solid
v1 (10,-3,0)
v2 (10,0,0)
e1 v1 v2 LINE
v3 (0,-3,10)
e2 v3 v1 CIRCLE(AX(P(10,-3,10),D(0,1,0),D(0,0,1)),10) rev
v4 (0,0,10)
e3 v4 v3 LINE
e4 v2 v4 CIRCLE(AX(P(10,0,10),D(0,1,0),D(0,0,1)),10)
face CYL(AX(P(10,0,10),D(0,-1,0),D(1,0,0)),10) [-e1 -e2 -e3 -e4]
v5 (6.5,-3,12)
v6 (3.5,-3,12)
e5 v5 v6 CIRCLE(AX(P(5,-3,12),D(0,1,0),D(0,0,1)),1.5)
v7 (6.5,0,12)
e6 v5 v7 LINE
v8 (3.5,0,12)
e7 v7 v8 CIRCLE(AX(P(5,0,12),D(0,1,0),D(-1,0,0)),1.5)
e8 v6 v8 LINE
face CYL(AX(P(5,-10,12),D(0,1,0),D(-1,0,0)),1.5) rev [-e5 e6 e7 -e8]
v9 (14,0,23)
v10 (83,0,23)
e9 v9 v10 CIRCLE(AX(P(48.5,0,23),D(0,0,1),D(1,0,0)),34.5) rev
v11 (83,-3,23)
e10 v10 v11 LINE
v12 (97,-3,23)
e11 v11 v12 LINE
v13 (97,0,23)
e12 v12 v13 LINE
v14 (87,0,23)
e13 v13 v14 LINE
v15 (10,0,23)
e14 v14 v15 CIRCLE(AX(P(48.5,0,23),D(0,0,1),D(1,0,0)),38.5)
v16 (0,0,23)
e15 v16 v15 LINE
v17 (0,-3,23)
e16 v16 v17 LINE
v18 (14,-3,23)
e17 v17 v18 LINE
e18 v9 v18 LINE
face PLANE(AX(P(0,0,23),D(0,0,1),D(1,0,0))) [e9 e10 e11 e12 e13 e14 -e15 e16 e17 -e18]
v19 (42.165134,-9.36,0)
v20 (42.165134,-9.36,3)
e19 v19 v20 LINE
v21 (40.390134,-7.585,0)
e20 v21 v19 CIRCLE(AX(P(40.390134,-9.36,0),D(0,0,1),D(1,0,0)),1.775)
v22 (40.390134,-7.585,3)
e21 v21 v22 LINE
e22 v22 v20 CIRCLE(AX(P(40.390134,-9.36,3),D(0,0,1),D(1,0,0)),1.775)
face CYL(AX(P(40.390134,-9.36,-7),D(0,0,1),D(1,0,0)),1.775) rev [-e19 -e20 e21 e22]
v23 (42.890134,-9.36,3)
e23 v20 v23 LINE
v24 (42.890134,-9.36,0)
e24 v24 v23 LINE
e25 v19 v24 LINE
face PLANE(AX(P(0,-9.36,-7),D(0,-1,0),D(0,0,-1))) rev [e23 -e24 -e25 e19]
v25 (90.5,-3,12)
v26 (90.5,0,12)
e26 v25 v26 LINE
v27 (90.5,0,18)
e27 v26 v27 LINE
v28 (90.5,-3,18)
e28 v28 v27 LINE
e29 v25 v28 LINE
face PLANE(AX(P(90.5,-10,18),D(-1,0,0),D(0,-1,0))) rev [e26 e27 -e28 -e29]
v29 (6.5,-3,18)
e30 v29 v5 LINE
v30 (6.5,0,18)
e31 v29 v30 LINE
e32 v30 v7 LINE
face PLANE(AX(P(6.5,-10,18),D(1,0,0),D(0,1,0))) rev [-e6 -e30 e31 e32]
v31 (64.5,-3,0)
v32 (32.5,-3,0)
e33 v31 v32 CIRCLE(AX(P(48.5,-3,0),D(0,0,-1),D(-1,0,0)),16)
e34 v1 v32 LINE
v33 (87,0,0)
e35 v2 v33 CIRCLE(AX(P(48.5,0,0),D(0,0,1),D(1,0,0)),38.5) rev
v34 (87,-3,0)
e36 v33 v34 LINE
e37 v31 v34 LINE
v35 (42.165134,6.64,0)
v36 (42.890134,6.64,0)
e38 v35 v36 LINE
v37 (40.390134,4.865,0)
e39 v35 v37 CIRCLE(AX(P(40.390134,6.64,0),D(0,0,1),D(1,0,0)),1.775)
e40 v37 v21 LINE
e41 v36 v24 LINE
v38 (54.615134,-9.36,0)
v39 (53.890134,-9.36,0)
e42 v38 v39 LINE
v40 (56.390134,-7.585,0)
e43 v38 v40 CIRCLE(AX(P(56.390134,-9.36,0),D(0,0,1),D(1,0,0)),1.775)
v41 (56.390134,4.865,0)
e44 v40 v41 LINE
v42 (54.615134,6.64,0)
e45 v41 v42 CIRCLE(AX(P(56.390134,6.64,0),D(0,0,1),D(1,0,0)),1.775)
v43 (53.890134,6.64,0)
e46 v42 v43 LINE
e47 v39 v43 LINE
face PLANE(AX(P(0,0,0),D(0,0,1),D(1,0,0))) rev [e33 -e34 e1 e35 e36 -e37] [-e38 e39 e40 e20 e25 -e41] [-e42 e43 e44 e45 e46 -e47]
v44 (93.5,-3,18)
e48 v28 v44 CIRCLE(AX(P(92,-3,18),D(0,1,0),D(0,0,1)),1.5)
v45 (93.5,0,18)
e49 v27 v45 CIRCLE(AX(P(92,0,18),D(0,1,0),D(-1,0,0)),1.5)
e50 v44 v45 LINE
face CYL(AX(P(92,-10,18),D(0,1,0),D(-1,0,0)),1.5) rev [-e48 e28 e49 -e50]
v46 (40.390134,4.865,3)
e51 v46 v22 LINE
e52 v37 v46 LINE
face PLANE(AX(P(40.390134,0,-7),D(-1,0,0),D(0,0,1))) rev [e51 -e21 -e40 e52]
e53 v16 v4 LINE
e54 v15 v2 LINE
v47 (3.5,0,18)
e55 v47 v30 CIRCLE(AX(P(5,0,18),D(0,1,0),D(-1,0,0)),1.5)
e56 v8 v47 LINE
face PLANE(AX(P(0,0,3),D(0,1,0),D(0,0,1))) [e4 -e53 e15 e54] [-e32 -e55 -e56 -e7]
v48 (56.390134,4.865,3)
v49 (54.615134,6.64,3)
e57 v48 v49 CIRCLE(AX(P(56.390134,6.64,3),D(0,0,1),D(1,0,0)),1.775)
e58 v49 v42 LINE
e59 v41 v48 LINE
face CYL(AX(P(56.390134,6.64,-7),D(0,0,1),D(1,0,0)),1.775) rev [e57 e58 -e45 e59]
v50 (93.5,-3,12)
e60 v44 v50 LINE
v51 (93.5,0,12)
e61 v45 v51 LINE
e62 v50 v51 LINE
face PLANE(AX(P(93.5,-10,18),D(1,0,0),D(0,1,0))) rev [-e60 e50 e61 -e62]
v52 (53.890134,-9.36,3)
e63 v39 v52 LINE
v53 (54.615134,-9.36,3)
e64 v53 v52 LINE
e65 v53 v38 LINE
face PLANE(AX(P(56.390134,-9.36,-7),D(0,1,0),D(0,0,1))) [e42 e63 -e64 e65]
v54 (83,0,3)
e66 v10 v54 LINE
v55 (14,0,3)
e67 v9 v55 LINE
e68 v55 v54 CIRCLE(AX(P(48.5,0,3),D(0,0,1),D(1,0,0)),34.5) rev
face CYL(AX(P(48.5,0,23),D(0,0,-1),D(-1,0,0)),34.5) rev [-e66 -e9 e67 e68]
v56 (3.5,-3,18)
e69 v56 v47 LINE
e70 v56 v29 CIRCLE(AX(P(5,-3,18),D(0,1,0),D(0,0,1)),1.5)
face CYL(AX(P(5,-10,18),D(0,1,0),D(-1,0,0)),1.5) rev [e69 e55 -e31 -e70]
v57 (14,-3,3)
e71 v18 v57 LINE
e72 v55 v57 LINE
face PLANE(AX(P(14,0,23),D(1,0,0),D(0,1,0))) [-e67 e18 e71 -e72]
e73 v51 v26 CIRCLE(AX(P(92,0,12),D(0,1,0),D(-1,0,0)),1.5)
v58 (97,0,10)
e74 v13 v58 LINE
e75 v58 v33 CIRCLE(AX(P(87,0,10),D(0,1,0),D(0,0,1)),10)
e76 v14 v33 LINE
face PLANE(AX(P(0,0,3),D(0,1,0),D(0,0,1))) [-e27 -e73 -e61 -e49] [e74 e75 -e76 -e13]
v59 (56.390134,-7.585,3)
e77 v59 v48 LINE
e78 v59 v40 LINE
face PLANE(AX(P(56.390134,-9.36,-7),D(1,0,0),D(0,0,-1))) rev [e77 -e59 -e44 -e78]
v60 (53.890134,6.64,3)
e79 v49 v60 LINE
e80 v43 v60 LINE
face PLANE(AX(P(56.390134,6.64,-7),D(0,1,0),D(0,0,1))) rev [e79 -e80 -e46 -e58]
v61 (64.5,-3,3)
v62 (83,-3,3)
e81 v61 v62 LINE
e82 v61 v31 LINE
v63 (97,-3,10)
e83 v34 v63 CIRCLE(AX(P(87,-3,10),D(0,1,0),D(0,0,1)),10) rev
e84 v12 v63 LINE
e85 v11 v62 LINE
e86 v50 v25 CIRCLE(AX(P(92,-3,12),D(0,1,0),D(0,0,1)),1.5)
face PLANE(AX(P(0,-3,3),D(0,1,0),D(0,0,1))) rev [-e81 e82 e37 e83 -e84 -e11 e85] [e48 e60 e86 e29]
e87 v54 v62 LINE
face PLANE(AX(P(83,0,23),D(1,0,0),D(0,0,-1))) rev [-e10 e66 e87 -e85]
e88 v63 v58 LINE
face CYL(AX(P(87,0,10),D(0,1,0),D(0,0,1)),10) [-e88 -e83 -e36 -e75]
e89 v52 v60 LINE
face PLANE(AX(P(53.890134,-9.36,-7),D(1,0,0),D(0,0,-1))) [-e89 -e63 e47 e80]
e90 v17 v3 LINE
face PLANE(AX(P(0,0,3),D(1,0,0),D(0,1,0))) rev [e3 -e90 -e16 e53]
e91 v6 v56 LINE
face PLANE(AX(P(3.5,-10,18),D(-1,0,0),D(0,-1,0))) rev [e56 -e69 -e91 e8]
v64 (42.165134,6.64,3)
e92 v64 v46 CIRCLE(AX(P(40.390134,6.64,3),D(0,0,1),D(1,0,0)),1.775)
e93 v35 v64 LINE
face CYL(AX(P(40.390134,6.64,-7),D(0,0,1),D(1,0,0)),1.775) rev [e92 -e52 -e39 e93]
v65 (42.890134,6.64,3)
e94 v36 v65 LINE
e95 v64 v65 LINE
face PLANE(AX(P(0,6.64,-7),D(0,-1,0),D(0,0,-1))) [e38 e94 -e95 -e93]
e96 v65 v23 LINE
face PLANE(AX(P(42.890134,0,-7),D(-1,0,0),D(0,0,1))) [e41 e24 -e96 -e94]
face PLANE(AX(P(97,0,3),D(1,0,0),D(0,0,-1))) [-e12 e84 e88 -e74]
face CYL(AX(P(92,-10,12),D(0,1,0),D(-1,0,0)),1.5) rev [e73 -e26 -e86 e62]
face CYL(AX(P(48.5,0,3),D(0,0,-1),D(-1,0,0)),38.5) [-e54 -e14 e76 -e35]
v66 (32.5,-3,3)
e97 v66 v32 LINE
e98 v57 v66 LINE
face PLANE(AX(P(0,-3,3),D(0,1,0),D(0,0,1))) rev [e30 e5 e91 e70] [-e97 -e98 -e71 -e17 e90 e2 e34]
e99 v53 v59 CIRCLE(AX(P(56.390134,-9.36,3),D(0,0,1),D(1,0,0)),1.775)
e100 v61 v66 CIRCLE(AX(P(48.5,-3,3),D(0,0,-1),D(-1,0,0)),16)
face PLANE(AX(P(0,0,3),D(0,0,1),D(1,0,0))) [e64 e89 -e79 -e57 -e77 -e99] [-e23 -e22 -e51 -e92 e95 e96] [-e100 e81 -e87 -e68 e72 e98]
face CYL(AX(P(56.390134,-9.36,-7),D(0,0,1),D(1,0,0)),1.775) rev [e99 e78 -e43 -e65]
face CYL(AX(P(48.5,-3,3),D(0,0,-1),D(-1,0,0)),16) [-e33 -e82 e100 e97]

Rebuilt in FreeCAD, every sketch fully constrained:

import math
import FreeCAD as App
import Part
import Sketcher


def edges_at(feature, points):
    """Names of the edges that pass closest to the given points."""
    edges = feature.Shape.Edges
    near = lambda p: min(range(len(edges)), key=lambda i: edges[i].distToShape(Part.Vertex(*p))[0])
    return sorted({f"Edge{near(p) + 1}" for p in points})

doc = App.newDocument("Part")
body = doc.addObject("PartDesign::Body", "Body")

# Sketch on XY plane
sketch1 = body.newObject("Sketcher::SketchObject", "Sketch")
sketch1.AttachmentSupport = (doc.getObject("XY_Plane"), [""])
sketch1.MapMode = "FlatFace"
sketch1.addGeometry(Part.LineSegment(App.Vector(10, 0, 0), App.Vector(0, 0, 0)), False)
sketch1.addGeometry(Part.LineSegment(App.Vector(0, 0, 0), App.Vector(0, -3, 0)), False)
sketch1.addGeometry(Part.LineSegment(App.Vector(0, -3, 0), App.Vector(97, -3, 0)), False)
sketch1.addGeometry(Part.LineSegment(App.Vector(97, -3, 0), App.Vector(97, 0, 0)), False)
sketch1.addGeometry(Part.LineSegment(App.Vector(97, 0, 0), App.Vector(87, 0, 0)), False)
sketch1.addGeometry(Part.ArcOfCircle(Part.Circle(App.Vector(48.5, 0, 0), App.Vector(0, 0, 1), 38.5), math.radians(0), math.radians(180)), False)
sketch1.addConstraint(Sketcher.Constraint("Coincident", 0, 2, 1, 1))
sketch1.addConstraint(Sketcher.Constraint("Coincident", 1, 2, 2, 1))
sketch1.addConstraint(Sketcher.Constraint("Coincident", 2, 2, 3, 1))
sketch1.addConstraint(Sketcher.Constraint("Coincident", 3, 2, 4, 1))
sketch1.addConstraint(Sketcher.Constraint("Coincident", 4, 2, 5, 1))
sketch1.addConstraint(Sketcher.Constraint("Coincident", 5, 2, 0, 1))
sketch1.addConstraint(Sketcher.Constraint("Horizontal", 0))
sketch1.addConstraint(Sketcher.Constraint("Vertical", 1))
sketch1.addConstraint(Sketcher.Constraint("Horizontal", 2))
sketch1.addConstraint(Sketcher.Constraint("Vertical", 3))
sketch1.addConstraint(Sketcher.Constraint("Horizontal", 4))
sketch1.addConstraint(Sketcher.Constraint("Coincident", 0, 2, -1, 1))
sketch1.addConstraint(Sketcher.Constraint("PointOnObject", 5, 3, -1))
sketch1.addConstraint(Sketcher.Constraint("PointOnObject", 3, 2, -1))
sketch1.addConstraint(Sketcher.Constraint("Equal", 0, 4))
sketch1.addConstraint(Sketcher.Constraint("Radius", 5, 38.5))
sketch1.addConstraint(Sketcher.Constraint("DistanceX", 0, 2, 0, 1, 10.0))
sketch1.addConstraint(Sketcher.Constraint("DistanceY", 1, 2, 1, 1, 3.0))
pad1 = body.newObject("PartDesign::Pad", "Pad")
pad1.Profile = sketch1
pad1.Length = 3

# Sketch on XY plane
sketch2 = body.newObject("Sketcher::SketchObject", "Sketch001")
sketch2.AttachmentSupport = (doc.getObject("XY_Plane"), [""])
sketch2.MapMode = "FlatFace"
sketch2.AttachmentOffset = App.Placement(App.Vector(0, 0, 3), App.Rotation())
sketch2.addGeometry(Part.LineSegment(App.Vector(0, 0, 0), App.Vector(0, -3, 0)), False)
sketch2.addGeometry(Part.LineSegment(App.Vector(0, -3, 0), App.Vector(14, -3, 0)), False)
sketch2.addGeometry(Part.LineSegment(App.Vector(14, -3, 0), App.Vector(14, 0, 0)), False)
sketch2.addGeometry(Part.ArcOfCircle(Part.Circle(App.Vector(48.5, 0, 0), App.Vector(0, 0, 1), 34.5), math.radians(0), math.radians(180)), False)
sketch2.addGeometry(Part.LineSegment(App.Vector(83, 0, 0), App.Vector(83, -3, 0)), False)
sketch2.addGeometry(Part.LineSegment(App.Vector(83, -3, 0), App.Vector(97, -3, 0)), False)
sketch2.addGeometry(Part.LineSegment(App.Vector(97, -3, 0), App.Vector(97, 0, 0)), False)
sketch2.addGeometry(Part.LineSegment(App.Vector(97, 0, 0), App.Vector(87, 0, 0)), False)
sketch2.addGeometry(Part.ArcOfCircle(Part.Circle(App.Vector(48.5, 0, 0), App.Vector(0, 0, 1), 38.5), math.radians(0), math.radians(180)), False)
sketch2.addGeometry(Part.LineSegment(App.Vector(10, 0, 0), App.Vector(0, 0, 0)), False)
sketch2.addConstraint(Sketcher.Constraint("Coincident", 0, 2, 1, 1))
sketch2.addConstraint(Sketcher.Constraint("Coincident", 1, 2, 2, 1))
sketch2.addConstraint(Sketcher.Constraint("Tangent", 2, 2, 3, 2))
sketch2.addConstraint(Sketcher.Constraint("Tangent", 3, 1, 4, 1))
sketch2.addConstraint(Sketcher.Constraint("Coincident", 4, 2, 5, 1))
sketch2.addConstraint(Sketcher.Constraint("Coincident", 5, 2, 6, 1))
sketch2.addConstraint(Sketcher.Constraint("Coincident", 6, 2, 7, 1))
sketch2.addConstraint(Sketcher.Constraint("Coincident", 7, 2, 8, 1))
sketch2.addConstraint(Sketcher.Constraint("Coincident", 8, 2, 9, 1))
sketch2.addConstraint(Sketcher.Constraint("Coincident", 9, 2, 0, 1))
sketch2.addConstraint(Sketcher.Constraint("Vertical", 0))
sketch2.addConstraint(Sketcher.Constraint("Horizontal", 1))
sketch2.addConstraint(Sketcher.Constraint("Vertical", 2))
sketch2.addConstraint(Sketcher.Constraint("Vertical", 4))
sketch2.addConstraint(Sketcher.Constraint("Horizontal", 5))
sketch2.addConstraint(Sketcher.Constraint("Vertical", 6))
sketch2.addConstraint(Sketcher.Constraint("Horizontal", 7))
sketch2.addConstraint(Sketcher.Constraint("Horizontal", 9))
sketch2.addConstraint(Sketcher.Constraint("Coincident", 9, 2, -1, 1))
sketch2.addConstraint(Sketcher.Constraint("Coincident", 8, 3, 3, 3))
sketch2.addConstraint(Sketcher.Constraint("PointOnObject", 3, 3, -1))
sketch2.addConstraint(Sketcher.Constraint("PointOnObject", 6, 2, -1))
sketch2.addConstraint(Sketcher.Constraint("Horizontal", 1, 2, 4, 2))
sketch2.addConstraint(Sketcher.Constraint("Equal", 1, 5))
sketch2.addConstraint(Sketcher.Constraint("Radius", 3, 34.5))
sketch2.addConstraint(Sketcher.Constraint("Radius", 8, 38.5))
sketch2.addConstraint(Sketcher.Constraint("DistanceX", 1, 1, 1, 2, 14.0))
sketch2.addConstraint(Sketcher.Constraint("DistanceY", 0, 2, 0, 1, 3.0))
pad2 = body.newObject("PartDesign::Pad", "Pad001")
pad2.Profile = sketch2
pad2.Length = 20

# Sketch on XY plane
sketch3 = body.newObject("Sketcher::SketchObject", "Sketch002")
sketch3.AttachmentSupport = (doc.getObject("XY_Plane"), [""])
sketch3.MapMode = "FlatFace"
sketch3.addGeometry(Part.LineSegment(App.Vector(32, -3, 0), App.Vector(64, -3, 0)), False)
sketch3.addGeometry(Part.ArcOfCircle(Part.Circle(App.Vector(48, -3, 0), App.Vector(0, 0, 1), 16), math.radians(180), math.radians(360)), False)
sketch3.addConstraint(Sketcher.Constraint("Coincident", 0, 1, 1, 1))
sketch3.addConstraint(Sketcher.Constraint("Coincident", 1, 2, 0, 2))
sketch3.addConstraint(Sketcher.Constraint("Horizontal", 0))
sketch3.addConstraint(Sketcher.Constraint("Horizontal", 1, 3, 0, 1))
sketch3.addConstraint(Sketcher.Constraint("Radius", 1, 16.0))
sketch3.addConstraint(Sketcher.Constraint("DistanceY", 1, 3, -1, 1, 3.0))
sketch3.addConstraint(Sketcher.Constraint("DistanceX", -1, 1, 1, 3, 48.5))
pad3 = body.newObject("PartDesign::Pad", "Pad002")
pad3.Profile = sketch3
pad3.Length = 3

# Sketch on XZ plane
sketch4 = body.newObject("Sketcher::SketchObject", "Sketch003")
sketch4.AttachmentSupport = (doc.getObject("XZ_Plane"), [""])
sketch4.MapMode = "FlatFace"
sketch4.addGeometry(Part.LineSegment(App.Vector(3.5, 12, 0), App.Vector(3.5, 18, 0)), False)
sketch4.addGeometry(Part.ArcOfCircle(Part.Circle(App.Vector(5, 18, 0), App.Vector(0, 0, 1), 1.5), math.radians(0), math.radians(180)), False)
sketch4.addGeometry(Part.LineSegment(App.Vector(6.5, 18, 0), App.Vector(6.5, 12, 0)), False)
sketch4.addGeometry(Part.ArcOfCircle(Part.Circle(App.Vector(5, 12, 0), App.Vector(0, 0, 1), 1.5), math.radians(180), math.radians(360)), False)
sketch4.addGeometry(Part.LineSegment(App.Vector(90.5, 12, 0), App.Vector(90.5, 18, 0)), False)
sketch4.addGeometry(Part.ArcOfCircle(Part.Circle(App.Vector(92, 18, 0), App.Vector(0, 0, 1), 1.5), math.radians(0), math.radians(180)), False)
sketch4.addGeometry(Part.LineSegment(App.Vector(93.5, 18, 0), App.Vector(93.5, 12, 0)), False)
sketch4.addGeometry(Part.ArcOfCircle(Part.Circle(App.Vector(92, 12, 0), App.Vector(0, 0, 1), 1.5), math.radians(180), math.radians(360)), False)
sketch4.addConstraint(Sketcher.Constraint("Tangent", 0, 2, 1, 2))
sketch4.addConstraint(Sketcher.Constraint("Tangent", 1, 1, 2, 1))
sketch4.addConstraint(Sketcher.Constraint("Tangent", 2, 2, 3, 2))
sketch4.addConstraint(Sketcher.Constraint("Tangent", 3, 1, 0, 1))
sketch4.addConstraint(Sketcher.Constraint("Tangent", 4, 2, 5, 2))
sketch4.addConstraint(Sketcher.Constraint("Tangent", 5, 1, 6, 1))
sketch4.addConstraint(Sketcher.Constraint("Tangent", 6, 2, 7, 2))
sketch4.addConstraint(Sketcher.Constraint("Tangent", 7, 1, 4, 1))
sketch4.addConstraint(Sketcher.Constraint("Vertical", 0))
sketch4.addConstraint(Sketcher.Constraint("Vertical", 2))
sketch4.addConstraint(Sketcher.Constraint("Vertical", 4))
sketch4.addConstraint(Sketcher.Constraint("Vertical", 6))
sketch4.addConstraint(Sketcher.Constraint("Equal", 3, 5))
sketch4.addConstraint(Sketcher.Constraint("Horizontal", 1, 3, 5, 3))
sketch4.addConstraint(Sketcher.Constraint("Horizontal", 3, 3, 7, 3))
sketch4.addConstraint(Sketcher.Constraint("Radius", 1, 1.5))
sketch4.addConstraint(Sketcher.Constraint("DistanceY", 0, 1, 0, 2, 6.0))
sketch4.addConstraint(Sketcher.Constraint("DistanceX", -1, 1, 1, 3, 5.0))
sketch4.addConstraint(Sketcher.Constraint("DistanceY", -1, 1, 1, 3, 18.0))
sketch4.addConstraint(Sketcher.Constraint("DistanceX", -1, 1, 5, 3, 92.0))
pocket1 = body.newObject("PartDesign::Pocket", "Pocket")
pocket1.Profile = sketch4
pocket1.Length = 10
pocket1.Reversed = True

# Sketch on XY plane
sketch5 = body.newObject("Sketcher::SketchObject", "Sketch004")
sketch5.AttachmentSupport = (doc.getObject("XY_Plane"), [""])
sketch5.MapMode = "FlatFace"
sketch5.AttachmentOffset = App.Placement(App.Vector(0, 0, 3), App.Rotation())
sketch5.addGeometry(Part.ArcOfCircle(Part.Circle(App.Vector(40.4, 6.6, 0), App.Vector(0, 0, 1), 1.8), math.radians(0), math.radians(270)), False)
sketch5.addGeometry(Part.LineSegment(App.Vector(40.4, 4.9, 0), App.Vector(40.4, -7.6, 0)), False)
sketch5.addGeometry(Part.ArcOfCircle(Part.Circle(App.Vector(40.4, -9.4, 0), App.Vector(0, 0, 1), 1.8), math.radians(90), math.radians(360)), False)
sketch5.addGeometry(Part.LineSegment(App.Vector(42.2, -9.4, 0), App.Vector(42.9, -9.4, 0)), False)
sketch5.addGeometry(Part.LineSegment(App.Vector(42.9, -9.4, 0), App.Vector(42.9, 6.6, 0)), False)
sketch5.addGeometry(Part.LineSegment(App.Vector(42.9, 6.6, 0), App.Vector(42.2, 6.6, 0)), False)
sketch5.addGeometry(Part.ArcOfCircle(Part.Circle(App.Vector(56.4, 6.6, 0), App.Vector(0, 0, 1), 1.8), math.radians(-90), math.radians(180)), False)
sketch5.addGeometry(Part.LineSegment(App.Vector(54.6, 6.6, 0), App.Vector(53.9, 6.6, 0)), False)
sketch5.addGeometry(Part.LineSegment(App.Vector(53.9, 6.6, 0), App.Vector(53.9, -9.4, 0)), False)
sketch5.addGeometry(Part.LineSegment(App.Vector(53.9, -9.4, 0), App.Vector(54.6, -9.4, 0)), False)
sketch5.addGeometry(Part.ArcOfCircle(Part.Circle(App.Vector(56.4, -9.4, 0), App.Vector(0, 0, 1), 1.8), math.radians(180), math.radians(450)), False)
sketch5.addGeometry(Part.LineSegment(App.Vector(56.4, -7.6, 0), App.Vector(56.4, 4.9, 0)), False)
sketch5.addConstraint(Sketcher.Constraint("Coincident", 0, 2, 1, 1))
sketch5.addConstraint(Sketcher.Constraint("Coincident", 1, 2, 2, 1))
sketch5.addConstraint(Sketcher.Constraint("Coincident", 2, 2, 3, 1))
sketch5.addConstraint(Sketcher.Constraint("Coincident", 3, 2, 4, 1))
sketch5.addConstraint(Sketcher.Constraint("Coincident", 4, 2, 5, 1))
sketch5.addConstraint(Sketcher.Constraint("Coincident", 5, 2, 0, 1))
sketch5.addConstraint(Sketcher.Constraint("Coincident", 6, 2, 7, 1))
sketch5.addConstraint(Sketcher.Constraint("Coincident", 7, 2, 8, 1))
sketch5.addConstraint(Sketcher.Constraint("Coincident", 8, 2, 9, 1))
sketch5.addConstraint(Sketcher.Constraint("Coincident", 9, 2, 10, 1))
sketch5.addConstraint(Sketcher.Constraint("Coincident", 10, 2, 11, 1))
sketch5.addConstraint(Sketcher.Constraint("Coincident", 11, 2, 6, 1))
sketch5.addConstraint(Sketcher.Constraint("Vertical", 1))
sketch5.addConstraint(Sketcher.Constraint("Horizontal", 3))
sketch5.addConstraint(Sketcher.Constraint("Vertical", 4))
sketch5.addConstraint(Sketcher.Constraint("Horizontal", 5))
sketch5.addConstraint(Sketcher.Constraint("Horizontal", 7))
sketch5.addConstraint(Sketcher.Constraint("Vertical", 8))
sketch5.addConstraint(Sketcher.Constraint("Horizontal", 9))
sketch5.addConstraint(Sketcher.Constraint("Vertical", 11))
sketch5.addConstraint(Sketcher.Constraint("Equal", 0, 2))
sketch5.addConstraint(Sketcher.Constraint("Equal", 2, 6))
sketch5.addConstraint(Sketcher.Constraint("Equal", 6, 10))
sketch5.addConstraint(Sketcher.Constraint("Horizontal", 0, 3, 6, 3))
sketch5.addConstraint(Sketcher.Constraint("Horizontal", 2, 3, 10, 3))
sketch5.addConstraint(Sketcher.Constraint("Horizontal", 10, 3, 2, 2))
sketch5.addConstraint(Sketcher.Constraint("Horizontal", 6, 3, 4, 2))
sketch5.addConstraint(Sketcher.Constraint("Horizontal", 5, 2, 6, 2))
sketch5.addConstraint(Sketcher.Constraint("Horizontal", 3, 2, 8, 2))
sketch5.addConstraint(Sketcher.Constraint("Vertical", 0, 3, 2, 3))
sketch5.addConstraint(Sketcher.Constraint("Vertical", 6, 3, 10, 3))
sketch5.addConstraint(Sketcher.Constraint("Vertical", 2, 3, 0, 2))
sketch5.addConstraint(Sketcher.Constraint("Vertical", 6, 3, 10, 2))
sketch5.addConstraint(Sketcher.Constraint("Equal", 5, 7))
sketch5.addConstraint(Sketcher.Constraint("DistanceY", 4, 1, 4, 2, 16.0))
sketch5.addConstraint(Sketcher.Constraint("Radius", 0, 1.775))
sketch5.addConstraint(Sketcher.Constraint("DistanceX", 0, 3, 6, 3, 16.0))
sketch5.addConstraint(Sketcher.Constraint("DistanceX", 4, 2, 7, 2, 11.0))
sketch5.addConstraint(Sketcher.Constraint("DistanceY", -1, 1, 0, 3, 6.64))
sketch5.addConstraint(Sketcher.Constraint("DistanceX", -1, 1, 0, 3, 40.390134))
pocket2 = body.newObject("PartDesign::Pocket", "Pocket001")
pocket2.Profile = sketch5
pocket2.Length = 10
doc.recompute()

fillet = body.newObject("PartDesign::Fillet", "Fillet")
fillet.Base = (pocket2, edges_at(pocket2, [(97, -1.5, 0)]))
fillet.Radius = 10
doc.recompute()

fillet2 = body.newObject("PartDesign::Fillet", "Fillet001")
fillet2.Base = (fillet, edges_at(fillet, [(0, -1.5, 0)]))
fillet2.Radius = 10

doc.recompute()
